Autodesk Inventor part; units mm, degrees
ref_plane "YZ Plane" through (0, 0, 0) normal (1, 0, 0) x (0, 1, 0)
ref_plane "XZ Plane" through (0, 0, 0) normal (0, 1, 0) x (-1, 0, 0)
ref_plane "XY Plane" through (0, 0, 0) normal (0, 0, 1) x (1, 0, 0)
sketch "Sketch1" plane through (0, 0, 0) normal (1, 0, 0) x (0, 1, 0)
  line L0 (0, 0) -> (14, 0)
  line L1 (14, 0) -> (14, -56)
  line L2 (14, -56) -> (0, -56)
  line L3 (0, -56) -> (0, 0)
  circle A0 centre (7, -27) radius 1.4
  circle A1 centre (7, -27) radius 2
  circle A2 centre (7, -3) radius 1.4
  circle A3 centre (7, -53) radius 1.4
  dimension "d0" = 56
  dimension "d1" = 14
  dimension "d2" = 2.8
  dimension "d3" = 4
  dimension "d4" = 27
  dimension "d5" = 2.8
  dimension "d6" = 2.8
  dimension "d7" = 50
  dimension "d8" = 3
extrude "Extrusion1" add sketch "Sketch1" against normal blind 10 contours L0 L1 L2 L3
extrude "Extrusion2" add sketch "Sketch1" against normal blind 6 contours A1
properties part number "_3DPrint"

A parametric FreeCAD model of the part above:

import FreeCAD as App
import Part
import Sketcher
from FreeCAD import Vector

doc = App.newDocument("Part")
body = doc.addObject("PartDesign::Body", "Body")

sketch1 = body.newObject("Sketcher::SketchObject", "Sketch")
sketch1.AttachmentSupport = (doc.getObject("YZ_Plane"), [""])
sketch1.MapMode = "FlatFace"
sketch1.addGeometry(Part.LineSegment(Vector(14, 0, 0), Vector(0, 0, 0)), False)
sketch1.addGeometry(Part.LineSegment(Vector(0, 0, 0), Vector(0, -56, 0)), False)
sketch1.addGeometry(Part.LineSegment(Vector(0, -56, 0), Vector(14, -56, 0)), False)
sketch1.addGeometry(Part.LineSegment(Vector(14, -56, 0), Vector(14, 0, 0)), False)
sketch1.addGeometry(Part.Circle(Vector(7, -53, 0), Vector(0, 0, 1), 1.4), False)
sketch1.addGeometry(Part.Circle(Vector(7, -27, 0), Vector(0, 0, 1), 2), False)
sketch1.addGeometry(Part.Circle(Vector(7, -3, 0), Vector(0, 0, 1), 1.4), False)
sketch1.addConstraint(Sketcher.Constraint("Coincident", 0, 2, 1, 1))
sketch1.addConstraint(Sketcher.Constraint("Coincident", 1, 2, 2, 1))
sketch1.addConstraint(Sketcher.Constraint("Coincident", 2, 2, 3, 1))
sketch1.addConstraint(Sketcher.Constraint("Coincident", 3, 2, 0, 1))
sketch1.addConstraint(Sketcher.Constraint("Horizontal", 0))
sketch1.addConstraint(Sketcher.Constraint("Vertical", 1))
sketch1.addConstraint(Sketcher.Constraint("Horizontal", 2))
sketch1.addConstraint(Sketcher.Constraint("Vertical", 3))
sketch1.addConstraint(Sketcher.Constraint("Coincident", 0, 2, -1, 1))
sketch1.addConstraint(Sketcher.Constraint("Equal", 4, 6))
sketch1.addConstraint(Sketcher.Constraint("Vertical", 4, 3, 5, 3))
sketch1.addConstraint(Sketcher.Constraint("Vertical", 5, 3, 6, 3))
sketch1.addConstraint(Sketcher.Constraint("Diameter", 5, 4.0))
sketch1.addConstraint(Sketcher.Constraint("Diameter", 4, 2.8))
sketch1.addConstraint(Sketcher.Constraint("DistanceX", 0, 2, 0, 1, 14.0))
sketch1.addConstraint(Sketcher.Constraint("DistanceY", 1, 2, 1, 1, 56.0))
sketch1.addConstraint(Sketcher.Constraint("DistanceY", 5, 3, -1, 1, 27.0))
sketch1.addConstraint(Sketcher.Constraint("DistanceY", 6, 3, -1, 1, 3.0))
sketch1.addConstraint(Sketcher.Constraint("DistanceY", 4, 3, 6, 3, 50.0))
sketch1.addConstraint(Sketcher.Constraint("DistanceX", -1, 1, 4, 3, 7.0))
pad1 = body.newObject("PartDesign::Pad", "Pad")
pad1.Profile = sketch1
pad1.Length = 10
pad1.Reversed = True

sketch2 = body.newObject("Sketcher::SketchObject", "Sketch001")
sketch2.AttachmentSupport = (doc.getObject("YZ_Plane"), [""])
sketch2.MapMode = "FlatFace"
sketch2.addGeometry(Part.Circle(Vector(7, -27, 0), Vector(0, 0, 1), 2), False)
sketch2.addGeometry(Part.Circle(Vector(7, -27, 0), Vector(0, 0, 1), 1.4), False)
sketch2.addConstraint(Sketcher.Constraint("Coincident", 1, 3, 0, 3))
sketch2.addConstraint(Sketcher.Constraint("Diameter", 0, 4.0))
sketch2.addConstraint(Sketcher.Constraint("Diameter", 1, 2.8))
sketch2.addConstraint(Sketcher.Constraint("DistanceY", 0, 3, -1, 1, 27.0))
sketch2.addConstraint(Sketcher.Constraint("DistanceX", -1, 1, 0, 3, 7.0))
pad2 = body.newObject("PartDesign::Pad", "Pad001")
pad2.Profile = sketch2
pad2.Length = 6
pad2.Reversed = True

doc.recompute()
